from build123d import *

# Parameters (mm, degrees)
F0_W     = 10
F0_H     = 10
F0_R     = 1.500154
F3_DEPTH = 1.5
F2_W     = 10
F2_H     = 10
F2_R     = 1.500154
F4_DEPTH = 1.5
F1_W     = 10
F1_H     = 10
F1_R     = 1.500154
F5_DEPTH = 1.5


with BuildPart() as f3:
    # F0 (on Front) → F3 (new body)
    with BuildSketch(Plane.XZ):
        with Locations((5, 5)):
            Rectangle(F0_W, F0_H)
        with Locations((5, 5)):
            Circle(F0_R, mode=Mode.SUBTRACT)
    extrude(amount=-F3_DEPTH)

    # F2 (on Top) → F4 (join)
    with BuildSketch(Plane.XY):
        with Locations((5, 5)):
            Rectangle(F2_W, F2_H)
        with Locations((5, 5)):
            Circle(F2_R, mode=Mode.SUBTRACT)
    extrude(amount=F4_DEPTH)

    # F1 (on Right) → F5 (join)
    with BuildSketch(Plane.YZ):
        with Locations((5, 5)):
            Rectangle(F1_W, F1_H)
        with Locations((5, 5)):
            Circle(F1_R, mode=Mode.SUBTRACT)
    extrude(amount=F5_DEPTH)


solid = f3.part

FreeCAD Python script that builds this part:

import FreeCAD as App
import Part
import Sketcher

doc = App.newDocument("Part")
params = doc.addObject("Spreadsheet::Sheet", "Params")
for row, (alias, value) in enumerate([
    ("sketch1_width", "10 mm"),
    ("pad1_length", "1.5 mm"),
    ("sketch2_width", "10 mm"),
    ("pad2_length", "1.5 mm"),
    ("sketch3_width", "10 mm"),
    ("pad3_length", "1.5 mm"),
], start=1):
    params.set(f"A{row}", alias)
    params.set(f"B{row}", "=" + value)
    params.setAlias(f"B{row}", alias)

body = doc.addObject("PartDesign::Body", "Body")

# Sketch on XZ plane
sketch1 = body.newObject("Sketcher::SketchObject", "Sketch")
sketch1.AttachmentSupport = (doc.getObject("XZ_Plane"), [""])
sketch1.MapMode = "FlatFace"
sketch1.addGeometry([
    Part.LineSegment(App.Vector(0, 10, 0), App.Vector(0, 0, 0)),  # 0
    Part.LineSegment(App.Vector(0, 0, 0), App.Vector(10, 0, 0)),  # 1
    Part.LineSegment(App.Vector(10, 0, 0), App.Vector(10, 10, 0)),  # 2
    Part.LineSegment(App.Vector(10, 10, 0), App.Vector(0, 10, 0)),  # 3
    Part.Circle(App.Vector(5, 5, 0), App.Vector(0, 0, 1), 1.500154),  # 4
], False)
sketch1.addConstraint([
    Sketcher.Constraint("Coincident", 0, 2, 1, 1),
    Sketcher.Constraint("Coincident", 1, 2, 2, 1),
    Sketcher.Constraint("Coincident", 2, 2, 3, 1),
    Sketcher.Constraint("Coincident", 3, 2, 0, 1),
    Sketcher.Constraint("Vertical", 0),
    Sketcher.Constraint("Horizontal", 1),
    Sketcher.Constraint("Vertical", 2),
    Sketcher.Constraint("Horizontal", 3),
    Sketcher.Constraint("Coincident", 0, 2, -1, 1),
    Sketcher.Constraint("Equal", 3, 0),
    Sketcher.Constraint("DistanceX", 1, 1, 1, 2, 10.0),
    Sketcher.Constraint("DistanceX", -1, 1, 4, 3, 5.0),
    Sketcher.Constraint("DistanceY", -1, 1, 4, 3, 5.0),
    Sketcher.Constraint("Diameter", 4, 3.000308),
])
sketch1.setExpression("Constraints[10]", "Params.sketch1_width")
pad1 = body.newObject("PartDesign::Pad", "Pad")
pad1.Profile = sketch1
pad1.setExpression("Length", "Params.pad1_length")
pad1.Reversed = True

# Sketch on XY plane
sketch2 = body.newObject("Sketcher::SketchObject", "Sketch001")
sketch2.AttachmentSupport = (doc.getObject("XY_Plane"), [""])
sketch2.MapMode = "FlatFace"
sketch2.addGeometry([
    Part.LineSegment(App.Vector(0, 10, 0), App.Vector(0, 0, 0)),  # 0
    Part.LineSegment(App.Vector(0, 0, 0), App.Vector(10, 0, 0)),  # 1
    Part.LineSegment(App.Vector(10, 0, 0), App.Vector(10, 10, 0)),  # 2
    Part.LineSegment(App.Vector(10, 10, 0), App.Vector(0, 10, 0)),  # 3
    Part.Circle(App.Vector(5, 5, 0), App.Vector(0, 0, 1), 1.500154),  # 4
], False)
sketch2.addConstraint([
    Sketcher.Constraint("Coincident", 0, 2, 1, 1),
    Sketcher.Constraint("Coincident", 1, 2, 2, 1),
    Sketcher.Constraint("Coincident", 2, 2, 3, 1),
    Sketcher.Constraint("Coincident", 3, 2, 0, 1),
    Sketcher.Constraint("Vertical", 0),
    Sketcher.Constraint("Horizontal", 1),
    Sketcher.Constraint("Vertical", 2),
    Sketcher.Constraint("Horizontal", 3),
    Sketcher.Constraint("Coincident", 0, 2, -1, 1),
    Sketcher.Constraint("Equal", 3, 0),
    Sketcher.Constraint("DistanceX", 1, 1, 1, 2, 10.0),
    Sketcher.Constraint("DistanceX", -1, 1, 4, 3, 5.0),
    Sketcher.Constraint("DistanceY", -1, 1, 4, 3, 5.0),
    Sketcher.Constraint("Diameter", 4, 3.000308),
])
sketch2.setExpression("Constraints[10]", "Params.sketch2_width")
pad2 = body.newObject("PartDesign::Pad", "Pad001")
pad2.Profile = sketch2
pad2.setExpression("Length", "Params.pad2_length")

# Sketch on YZ plane
sketch3 = body.newObject("Sketcher::SketchObject", "Sketch002")
sketch3.AttachmentSupport = (doc.getObject("YZ_Plane"), [""])
sketch3.MapMode = "FlatFace"
sketch3.addGeometry([
    Part.LineSegment(App.Vector(0, 10, 0), App.Vector(0, 0, 0)),  # 0
    Part.LineSegment(App.Vector(0, 0, 0), App.Vector(10, 0, 0)),  # 1
    Part.LineSegment(App.Vector(10, 0, 0), App.Vector(10, 10, 0)),  # 2
    Part.LineSegment(App.Vector(10, 10, 0), App.Vector(0, 10, 0)),  # 3
    Part.Circle(App.Vector(5, 5, 0), App.Vector(0, 0, 1), 1.500154),  # 4
], False)
sketch3.addConstraint([
    Sketcher.Constraint("Coincident", 0, 2, 1, 1),
    Sketcher.Constraint("Coincident", 1, 2, 2, 1),
    Sketcher.Constraint("Coincident", 2, 2, 3, 1),
    Sketcher.Constraint("Coincident", 3, 2, 0, 1),
    Sketcher.Constraint("Vertical", 0),
    Sketcher.Constraint("Horizontal", 1),
    Sketcher.Constraint("Vertical", 2),
    Sketcher.Constraint("Horizontal", 3),
    Sketcher.Constraint("Coincident", 0, 2, -1, 1),
    Sketcher.Constraint("Equal", 3, 0),
    Sketcher.Constraint("DistanceX", 1, 1, 1, 2, 10.0),
    Sketcher.Constraint("DistanceX", -1, 1, 4, 3, 5.0),
    Sketcher.Constraint("DistanceY", -1, 1, 4, 3, 5.0),
    Sketcher.Constraint("Diameter", 4, 3.000308),
])
sketch3.setExpression("Constraints[10]", "Params.sketch3_width")
pad3 = body.newObject("PartDesign::Pad", "Pad002")
pad3.Profile = sketch3
pad3.setExpression("Length", "Params.pad3_length")

doc.recompute()
